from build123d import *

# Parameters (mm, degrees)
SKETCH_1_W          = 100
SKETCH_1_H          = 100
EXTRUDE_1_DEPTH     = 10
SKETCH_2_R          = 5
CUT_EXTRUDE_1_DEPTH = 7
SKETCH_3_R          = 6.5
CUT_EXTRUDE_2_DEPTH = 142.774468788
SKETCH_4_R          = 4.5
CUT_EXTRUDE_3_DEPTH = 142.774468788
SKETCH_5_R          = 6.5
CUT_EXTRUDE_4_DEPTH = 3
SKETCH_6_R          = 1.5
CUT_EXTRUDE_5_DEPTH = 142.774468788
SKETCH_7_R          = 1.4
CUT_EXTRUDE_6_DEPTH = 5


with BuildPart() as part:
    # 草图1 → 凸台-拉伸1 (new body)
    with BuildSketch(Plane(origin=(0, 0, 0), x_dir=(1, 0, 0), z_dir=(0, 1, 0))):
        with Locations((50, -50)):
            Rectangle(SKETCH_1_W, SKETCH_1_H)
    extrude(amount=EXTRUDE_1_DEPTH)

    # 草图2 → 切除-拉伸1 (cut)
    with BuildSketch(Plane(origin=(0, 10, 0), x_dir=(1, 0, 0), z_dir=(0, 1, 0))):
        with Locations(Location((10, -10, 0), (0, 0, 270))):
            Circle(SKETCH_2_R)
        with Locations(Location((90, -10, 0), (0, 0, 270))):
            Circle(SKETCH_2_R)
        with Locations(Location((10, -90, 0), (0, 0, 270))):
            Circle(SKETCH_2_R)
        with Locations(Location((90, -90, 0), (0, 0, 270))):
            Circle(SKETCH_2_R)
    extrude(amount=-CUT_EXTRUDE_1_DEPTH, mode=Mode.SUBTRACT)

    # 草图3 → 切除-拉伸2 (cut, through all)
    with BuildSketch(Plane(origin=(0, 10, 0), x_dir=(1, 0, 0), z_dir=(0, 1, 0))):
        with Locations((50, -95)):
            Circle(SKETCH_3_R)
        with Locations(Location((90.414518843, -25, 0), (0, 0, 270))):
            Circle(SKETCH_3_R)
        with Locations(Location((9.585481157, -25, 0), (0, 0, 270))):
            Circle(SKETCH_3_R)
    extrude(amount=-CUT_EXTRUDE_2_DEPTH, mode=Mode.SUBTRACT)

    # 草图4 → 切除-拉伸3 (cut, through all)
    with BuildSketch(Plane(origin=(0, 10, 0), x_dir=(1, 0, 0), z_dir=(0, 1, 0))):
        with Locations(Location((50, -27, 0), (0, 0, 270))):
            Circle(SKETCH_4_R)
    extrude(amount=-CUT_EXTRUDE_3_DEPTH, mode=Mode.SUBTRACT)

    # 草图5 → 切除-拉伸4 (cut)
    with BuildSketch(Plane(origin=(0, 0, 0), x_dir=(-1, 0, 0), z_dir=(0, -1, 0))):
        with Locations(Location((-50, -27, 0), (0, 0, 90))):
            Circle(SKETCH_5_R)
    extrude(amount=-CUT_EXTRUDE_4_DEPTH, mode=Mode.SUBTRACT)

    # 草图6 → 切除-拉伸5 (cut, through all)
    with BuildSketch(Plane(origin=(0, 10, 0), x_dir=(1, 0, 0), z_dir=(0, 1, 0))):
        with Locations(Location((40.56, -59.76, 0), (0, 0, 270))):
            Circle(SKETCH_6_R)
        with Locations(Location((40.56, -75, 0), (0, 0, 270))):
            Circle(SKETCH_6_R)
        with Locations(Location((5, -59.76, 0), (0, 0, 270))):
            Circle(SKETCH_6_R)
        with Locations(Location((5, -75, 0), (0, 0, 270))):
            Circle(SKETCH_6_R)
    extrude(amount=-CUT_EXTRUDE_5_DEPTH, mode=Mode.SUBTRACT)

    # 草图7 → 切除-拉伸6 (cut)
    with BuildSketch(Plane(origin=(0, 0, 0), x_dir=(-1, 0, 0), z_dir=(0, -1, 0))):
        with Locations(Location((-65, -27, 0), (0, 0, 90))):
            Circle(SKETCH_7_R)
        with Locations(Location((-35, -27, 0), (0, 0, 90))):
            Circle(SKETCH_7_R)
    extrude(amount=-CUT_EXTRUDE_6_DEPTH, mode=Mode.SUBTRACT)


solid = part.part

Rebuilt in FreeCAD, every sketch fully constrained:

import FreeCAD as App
import Part
import Sketcher

V = App.Vector

doc = App.newDocument("Part")
params = doc.addObject("Spreadsheet::Sheet", "Params")
for row, (alias, value) in enumerate([
    ("sketch1_width", "100 mm"),
    ("pad1_length", "10 mm"),
    ("sketch2_diameter", "10 mm"),
    ("pocket1_length", "7 mm"),
    ("sketch3_diameter", "13 mm"),
    ("sketch4_diameter", "9 mm"),
    ("sketch5_diameter", "13 mm"),
    ("pocket4_length", "3 mm"),
    ("sketch6_diameter", "3 mm"),
    ("sketch7_diameter", "2.8 mm"),
    ("pocket6_length", "5 mm"),
], start=1):
    params.set(f"A{row}", alias)
    params.set(f"B{row}", "=" + value)
    params.setAlias(f"B{row}", alias)

body = doc.addObject("PartDesign::Body", "Body")

# Sketch on XZ plane
sketch1 = body.newObject("Sketcher::SketchObject", "Sketch")
sketch1.AttachmentSupport = (doc.getObject("XZ_Plane"), [""])
sketch1.MapMode = "FlatFace"
sketch1.addGeometry(Part.LineSegment(V(0, 0, 0), V(0, 100, 0)), False)
sketch1.addGeometry(Part.LineSegment(V(0, 100, 0), V(100, 100, 0)), False)
sketch1.addGeometry(Part.LineSegment(V(100, 100, 0), V(100, 0, 0)), False)
sketch1.addGeometry(Part.LineSegment(V(100, 0, 0), V(0, 0, 0)), False)
sketch1.addConstraint(Sketcher.Constraint("Coincident", 0, 2, 1, 1))
sketch1.addConstraint(Sketcher.Constraint("Coincident", 1, 2, 2, 1))
sketch1.addConstraint(Sketcher.Constraint("Coincident", 2, 2, 3, 1))
sketch1.addConstraint(Sketcher.Constraint("Coincident", 3, 2, 0, 1))
sketch1.addConstraint(Sketcher.Constraint("Vertical", 0))
sketch1.addConstraint(Sketcher.Constraint("Horizontal", 1))
sketch1.addConstraint(Sketcher.Constraint("Vertical", 2))
sketch1.addConstraint(Sketcher.Constraint("Horizontal", 3))
sketch1.addConstraint(Sketcher.Constraint("Coincident", 3, 2, -1, 1))
sketch1.addConstraint(Sketcher.Constraint("Equal", 3, 0))
sketch1.addConstraint(Sketcher.Constraint("DistanceX", 1, 1, 1, 2, 100.0))
sketch1.setExpression("Constraints[10]", "Params.sketch1_width")
pad1 = body.newObject("PartDesign::Pad", "Pad")
pad1.Profile = sketch1
pad1.setExpression("Length", "Params.pad1_length")
pad1.Reversed = True

# Sketch on XZ plane
sketch2 = body.newObject("Sketcher::SketchObject", "Sketch001")
sketch2.AttachmentSupport = (doc.getObject("XZ_Plane"), [""])
sketch2.MapMode = "FlatFace"
sketch2.AttachmentOffset = App.Placement(V(0, 0, -10), App.Rotation())
sketch2.addGeometry(Part.Circle(V(10, 10, 0), V(0, 0, 1), 5), False)
sketch2.addGeometry(Part.Circle(V(90, 10, 0), V(0, 0, 1), 5), False)
sketch2.addGeometry(Part.Circle(V(10, 90, 0), V(0, 0, 1), 5), False)
sketch2.addGeometry(Part.Circle(V(90, 90, 0), V(0, 0, 1), 5), False)
sketch2.addConstraint(Sketcher.Constraint("Equal", 0, 1))
sketch2.addConstraint(Sketcher.Constraint("Equal", 1, 2))
sketch2.addConstraint(Sketcher.Constraint("Equal", 2, 3))
sketch2.addConstraint(Sketcher.Constraint("Horizontal", 0, 3, 1, 3))
sketch2.addConstraint(Sketcher.Constraint("Horizontal", 2, 3, 3, 3))
sketch2.addConstraint(Sketcher.Constraint("Vertical", 0, 3, 2, 3))
sketch2.addConstraint(Sketcher.Constraint("Vertical", 1, 3, 3, 3))
sketch2.addConstraint(Sketcher.Constraint("Diameter", 0, 10.0))
sketch2.addConstraint(Sketcher.Constraint("DistanceX", -1, 1, 0, 3, 10.0))
sketch2.addConstraint(Sketcher.Constraint("DistanceY", -1, 1, 0, 3, 10.0))
sketch2.addConstraint(Sketcher.Constraint("DistanceX", -1, 1, 1, 3, 90.0))
sketch2.addConstraint(Sketcher.Constraint("DistanceY", -1, 1, 2, 3, 90.0))
sketch2.setExpression("Constraints[7]", "Params.sketch2_diameter")
pocket1 = body.newObject("PartDesign::Pocket", "Pocket")
pocket1.Profile = sketch2
pocket1.setExpression("Length", "Params.pocket1_length")
pocket1.Reversed = True

# Sketch on XZ plane
sketch3 = body.newObject("Sketcher::SketchObject", "Sketch002")
sketch3.AttachmentSupport = (doc.getObject("XZ_Plane"), [""])
sketch3.MapMode = "FlatFace"
sketch3.AttachmentOffset = App.Placement(V(0, 0, -10), App.Rotation())
sketch3.addGeometry(Part.Circle(V(50, 95, 0), V(0, 0, 1), 6), False)
sketch3.addGeometry(Part.Circle(V(90, 25, 0), V(0, 0, 1), 6), False)
sketch3.addGeometry(Part.Circle(V(10, 25, 0), V(0, 0, 1), 6), False)
sketch3.addConstraint(Sketcher.Constraint("Equal", 0, 1))
sketch3.addConstraint(Sketcher.Constraint("Equal", 1, 2))
sketch3.addConstraint(Sketcher.Constraint("Horizontal", 1, 3, 2, 3))
sketch3.addConstraint(Sketcher.Constraint("Diameter", 0, 13.0))
sketch3.addConstraint(Sketcher.Constraint("DistanceX", -1, 1, 0, 3, 50.0))
sketch3.addConstraint(Sketcher.Constraint("DistanceY", -1, 1, 0, 3, 95.0))
sketch3.addConstraint(Sketcher.Constraint("DistanceY", -1, 1, 1, 3, 25.0))
sketch3.addConstraint(Sketcher.Constraint("DistanceX", -1, 1, 1, 3, 90.414519))
sketch3.addConstraint(Sketcher.Constraint("DistanceX", -1, 1, 2, 3, 9.585481))
sketch3.setExpression("Constraints[3]", "Params.sketch3_diameter")
pocket2 = body.newObject("PartDesign::Pocket", "Pocket001")
pocket2.Profile = sketch3
pocket2.Type = "ThroughAll"
pocket2.Reversed = True

# Sketch on XZ plane
sketch4 = body.newObject("Sketcher::SketchObject", "Sketch003")
sketch4.AttachmentSupport = (doc.getObject("XZ_Plane"), [""])
sketch4.MapMode = "FlatFace"
sketch4.AttachmentOffset = App.Placement(V(0, 0, -10), App.Rotation())
sketch4.addGeometry(Part.Circle(V(50, 27, 0), V(0, 0, 1), 4.5), False)
sketch4.addConstraint(Sketcher.Constraint("Diameter", 0, 9.0))
sketch4.addConstraint(Sketcher.Constraint("DistanceX", -1, 1, 0, 3, 50.0))
sketch4.addConstraint(Sketcher.Constraint("DistanceY", -1, 1, 0, 3, 27.0))
sketch4.setExpression("Constraints[0]", "Params.sketch4_diameter")
pocket3 = body.newObject("PartDesign::Pocket", "Pocket002")
pocket3.Profile = sketch4
pocket3.Type = "ThroughAll"
pocket3.Reversed = True

# Sketch on XZ plane
sketch5 = body.newObject("Sketcher::SketchObject", "Sketch004")
sketch5.AttachmentSupport = (doc.getObject("XZ_Plane"), [""])
sketch5.MapMode = "FlatFace"
sketch5.addGeometry(Part.Circle(V(50, 27, 0), V(0, 0, 1), 6), False)
sketch5.addConstraint(Sketcher.Constraint("Diameter", 0, 13.0))
sketch5.addConstraint(Sketcher.Constraint("DistanceX", -1, 1, 0, 3, 50.0))
sketch5.addConstraint(Sketcher.Constraint("DistanceY", -1, 1, 0, 3, 27.0))
sketch5.setExpression("Constraints[0]", "Params.sketch5_diameter")
pocket4 = body.newObject("PartDesign::Pocket", "Pocket003")
pocket4.Profile = sketch5
pocket4.setExpression("Length", "Params.pocket4_length")

# Sketch on XZ plane
sketch6 = body.newObject("Sketcher::SketchObject", "Sketch005")
sketch6.AttachmentSupport = (doc.getObject("XZ_Plane"), [""])
sketch6.MapMode = "FlatFace"
sketch6.AttachmentOffset = App.Placement(V(0, 0, -10), App.Rotation())
sketch6.addGeometry(Part.Circle(V(40.6, 59.8, 0), V(0, 0, 1), 1.5), False)
sketch6.addGeometry(Part.Circle(V(40.6, 75, 0), V(0, 0, 1), 1.5), False)
sketch6.addGeometry(Part.Circle(V(5, 59.8, 0), V(0, 0, 1), 1.5), False)
sketch6.addGeometry(Part.Circle(V(5, 75, 0), V(0, 0, 1), 1.5), False)
sketch6.addConstraint(Sketcher.Constraint("Equal", 0, 1))
sketch6.addConstraint(Sketcher.Constraint("Equal", 1, 2))
sketch6.addConstraint(Sketcher.Constraint("Equal", 2, 3))
sketch6.addConstraint(Sketcher.Constraint("Horizontal", 0, 3, 2, 3))
sketch6.addConstraint(Sketcher.Constraint("Horizontal", 1, 3, 3, 3))
sketch6.addConstraint(Sketcher.Constraint("Vertical", 0, 3, 1, 3))
sketch6.addConstraint(Sketcher.Constraint("Vertical", 2, 3, 3, 3))
sketch6.addConstraint(Sketcher.Constraint("Diameter", 0, 3.0))
sketch6.addConstraint(Sketcher.Constraint("DistanceY", -1, 1, 1, 3, 75.0))
sketch6.addConstraint(Sketcher.Constraint("DistanceX", -1, 1, 2, 3, 5.0))
sketch6.addConstraint(Sketcher.Constraint("DistanceX", -1, 1, 0, 3, 40.56))
sketch6.addConstraint(Sketcher.Constraint("DistanceY", -1, 1, 0, 3, 59.76))
sketch6.setExpression("Constraints[7]", "Params.sketch6_diameter")
pocket5 = body.newObject("PartDesign::Pocket", "Pocket004")
pocket5.Profile = sketch6
pocket5.Type = "ThroughAll"
pocket5.Reversed = True

# Sketch on XZ plane
sketch7 = body.newObject("Sketcher::SketchObject", "Sketch006")
sketch7.AttachmentSupport = (doc.getObject("XZ_Plane"), [""])
sketch7.MapMode = "FlatFace"
sketch7.addGeometry(Part.Circle(V(65, 27, 0), V(0, 0, 1), 1.4), False)
sketch7.addGeometry(Part.Circle(V(35, 27, 0), V(0, 0, 1), 1.4), False)
sketch7.addConstraint(Sketcher.Constraint("Equal", 0, 1))
sketch7.addConstraint(Sketcher.Constraint("Horizontal", 0, 3, 1, 3))
sketch7.addConstraint(Sketcher.Constraint("Diameter", 0, 2.8))
sketch7.addConstraint(Sketcher.Constraint("DistanceX", -1, 1, 0, 3, 65.0))
sketch7.addConstraint(Sketcher.Constraint("DistanceY", -1, 1, 0, 3, 27.0))
sketch7.addConstraint(Sketcher.Constraint("DistanceX", -1, 1, 1, 3, 35.0))
sketch7.setExpression("Constraints[2]", "Params.sketch7_diameter")
pocket6 = body.newObject("PartDesign::Pocket", "Pocket005")
pocket6.Profile = sketch7
pocket6.setExpression("Length", "Params.pocket6_length")

doc.recompute()
